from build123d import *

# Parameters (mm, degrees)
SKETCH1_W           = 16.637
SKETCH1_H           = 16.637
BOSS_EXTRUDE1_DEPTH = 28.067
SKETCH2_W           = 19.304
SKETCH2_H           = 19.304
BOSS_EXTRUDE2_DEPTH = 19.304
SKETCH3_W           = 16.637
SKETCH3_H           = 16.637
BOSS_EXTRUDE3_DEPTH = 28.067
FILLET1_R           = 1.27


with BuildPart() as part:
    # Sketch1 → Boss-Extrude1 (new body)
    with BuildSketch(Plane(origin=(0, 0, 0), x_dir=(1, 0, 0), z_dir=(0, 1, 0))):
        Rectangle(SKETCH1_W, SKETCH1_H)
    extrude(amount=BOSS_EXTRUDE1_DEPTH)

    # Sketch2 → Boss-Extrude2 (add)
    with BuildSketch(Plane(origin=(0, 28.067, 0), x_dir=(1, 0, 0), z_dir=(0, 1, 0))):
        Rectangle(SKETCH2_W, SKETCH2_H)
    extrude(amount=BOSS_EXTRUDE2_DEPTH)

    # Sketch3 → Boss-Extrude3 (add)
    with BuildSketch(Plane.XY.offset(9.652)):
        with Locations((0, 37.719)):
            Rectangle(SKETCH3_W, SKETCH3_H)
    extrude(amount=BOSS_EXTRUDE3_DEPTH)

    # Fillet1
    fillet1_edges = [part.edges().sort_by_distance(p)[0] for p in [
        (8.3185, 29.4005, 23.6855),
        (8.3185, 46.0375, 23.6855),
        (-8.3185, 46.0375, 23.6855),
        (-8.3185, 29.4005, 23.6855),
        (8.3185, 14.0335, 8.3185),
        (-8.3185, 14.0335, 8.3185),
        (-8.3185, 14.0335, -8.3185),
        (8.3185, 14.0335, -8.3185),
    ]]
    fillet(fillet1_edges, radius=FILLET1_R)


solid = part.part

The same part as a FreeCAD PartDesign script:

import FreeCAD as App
import Part
import Sketcher
from FreeCAD import Vector
Q = App.Units.Quantity


def edges_at(feature, points):
    """Names of the edges that pass closest to the given points."""
    edges = feature.Shape.Edges
    near = lambda p: min(range(len(edges)), key=lambda i: edges[i].distToShape(Part.Vertex(*p))[0])
    return sorted({f"Edge{near(p) + 1}" for p in points})

doc = App.newDocument("Part")
body = doc.addObject("PartDesign::Body", "Body")

sketch1 = body.newObject("Sketcher::SketchObject", "Sketch")
sketch1.AttachmentSupport = (doc.getObject("XZ_Plane"), [""])
sketch1.MapMode = "FlatFace"
sketch1.addGeometry([
    Part.LineSegment(Vector(-8.3185, -8.3185, 0), Vector(-8.3185, 8.3185, 0)),
    Part.LineSegment(Vector(-8.3185, 8.3185, 0), Vector(8.3185, 8.3185, 0)),
    Part.LineSegment(Vector(8.3185, 8.3185, 0), Vector(8.3185, -8.3185, 0)),
    Part.LineSegment(Vector(8.3185, -8.3185, 0), Vector(-8.3185, -8.3185, 0)),
], False)
sketch1.addConstraint([
    Sketcher.Constraint("Coincident", 0, 2, 1, 1),
    Sketcher.Constraint("Coincident", 1, 2, 2, 1),
    Sketcher.Constraint("Coincident", 2, 2, 3, 1),
    Sketcher.Constraint("Coincident", 3, 2, 0, 1),
    Sketcher.Constraint("Vertical", 0),
    Sketcher.Constraint("Horizontal", 1),
    Sketcher.Constraint("Vertical", 2),
    Sketcher.Constraint("Horizontal", 3),
    Sketcher.Constraint("Symmetric", 0, 2, 2, 2, -1, 1),
    Sketcher.Constraint("Equal", 3, 0),
    Sketcher.Constraint("DistanceX", 1, 1, 1, 2, Q("0.655 in")),
])
pad1 = body.newObject("PartDesign::Pad", "Pad")
pad1.Profile = sketch1
pad1.Length = Q("1.105 in")
pad1.Reversed = True

sketch2 = body.newObject("Sketcher::SketchObject", "Sketch001")
sketch2.AttachmentSupport = (doc.getObject("XZ_Plane"), [""])
sketch2.MapMode = "FlatFace"
sketch2.AttachmentOffset = App.Placement(Vector(0, 0, -1.105 * 25.4), App.Rotation())
sketch2.addGeometry([
    Part.LineSegment(Vector(-9.652, -9.652, 0), Vector(-9.652, 9.652, 0)),
    Part.LineSegment(Vector(-9.652, 9.652, 0), Vector(9.652, 9.652, 0)),
    Part.LineSegment(Vector(9.652, 9.652, 0), Vector(9.652, -9.652, 0)),
    Part.LineSegment(Vector(9.652, -9.652, 0), Vector(-9.652, -9.652, 0)),
], False)
sketch2.addConstraint([
    Sketcher.Constraint("Coincident", 0, 2, 1, 1),
    Sketcher.Constraint("Coincident", 1, 2, 2, 1),
    Sketcher.Constraint("Coincident", 2, 2, 3, 1),
    Sketcher.Constraint("Coincident", 3, 2, 0, 1),
    Sketcher.Constraint("Vertical", 0),
    Sketcher.Constraint("Horizontal", 1),
    Sketcher.Constraint("Vertical", 2),
    Sketcher.Constraint("Horizontal", 3),
    Sketcher.Constraint("Symmetric", 0, 2, 2, 2, -1, 1),
    Sketcher.Constraint("Equal", 3, 0),
    Sketcher.Constraint("DistanceX", 1, 1, 1, 2, Q("0.76 in")),
])
pad2 = body.newObject("PartDesign::Pad", "Pad001")
pad2.Profile = sketch2
pad2.Length = Q("0.76 in")
pad2.Reversed = True

sketch3 = body.newObject("Sketcher::SketchObject", "Sketch002")
sketch3.AttachmentSupport = (doc.getObject("XY_Plane"), [""])
sketch3.MapMode = "FlatFace"
sketch3.AttachmentOffset = App.Placement(Vector(0, 0, 0.38 * 25.4), App.Rotation())
sketch3.addGeometry([
    Part.LineSegment(Vector(-8.3185, 46.0375, 0), Vector(-8.3185, 29.4005, 0)),
    Part.LineSegment(Vector(-8.3185, 29.4005, 0), Vector(8.3185, 29.4005, 0)),
    Part.LineSegment(Vector(8.3185, 29.4005, 0), Vector(8.3185, 46.0375, 0)),
    Part.LineSegment(Vector(8.3185, 46.0375, 0), Vector(-8.3185, 46.0375, 0)),
], False)
sketch3.addConstraint([
    Sketcher.Constraint("Coincident", 0, 2, 1, 1),
    Sketcher.Constraint("Coincident", 1, 2, 2, 1),
    Sketcher.Constraint("Coincident", 2, 2, 3, 1),
    Sketcher.Constraint("Coincident", 3, 2, 0, 1),
    Sketcher.Constraint("Vertical", 0),
    Sketcher.Constraint("Horizontal", 1),
    Sketcher.Constraint("Vertical", 2),
    Sketcher.Constraint("Horizontal", 3),
    Sketcher.Constraint("Equal", 3, 0),
    Sketcher.Constraint("DistanceX", 1, 1, 1, 2, Q("0.655 in")),
    Sketcher.Constraint("DistanceY", -1, 1, 2, 2, Q("1.8125 in")),
    Sketcher.Constraint("DistanceX", 0, 2, -1, 1, Q("0.3275 in")),
])
pad3 = body.newObject("PartDesign::Pad", "Pad002")
pad3.Profile = sketch3
pad3.Length = Q("1.105 in")
doc.recompute()

fillet = body.newObject("PartDesign::Fillet", "Fillet")
fillet.Base = (pad3, edges_at(pad3, [
    (8.319, 29.401, 23.686),
    (8.319, 46.038, 23.686),
    (-8.319, 46.038, 23.686),
    (-8.319, 29.401, 23.686),
    (8.319, 14.034, 8.319),
    (-8.319, 14.034, 8.319),
    (-8.319, 14.034, -8.319),
    (8.319, 14.034, -8.319),
]))
fillet.Radius = Q("0.05 in")

doc.recompute()
